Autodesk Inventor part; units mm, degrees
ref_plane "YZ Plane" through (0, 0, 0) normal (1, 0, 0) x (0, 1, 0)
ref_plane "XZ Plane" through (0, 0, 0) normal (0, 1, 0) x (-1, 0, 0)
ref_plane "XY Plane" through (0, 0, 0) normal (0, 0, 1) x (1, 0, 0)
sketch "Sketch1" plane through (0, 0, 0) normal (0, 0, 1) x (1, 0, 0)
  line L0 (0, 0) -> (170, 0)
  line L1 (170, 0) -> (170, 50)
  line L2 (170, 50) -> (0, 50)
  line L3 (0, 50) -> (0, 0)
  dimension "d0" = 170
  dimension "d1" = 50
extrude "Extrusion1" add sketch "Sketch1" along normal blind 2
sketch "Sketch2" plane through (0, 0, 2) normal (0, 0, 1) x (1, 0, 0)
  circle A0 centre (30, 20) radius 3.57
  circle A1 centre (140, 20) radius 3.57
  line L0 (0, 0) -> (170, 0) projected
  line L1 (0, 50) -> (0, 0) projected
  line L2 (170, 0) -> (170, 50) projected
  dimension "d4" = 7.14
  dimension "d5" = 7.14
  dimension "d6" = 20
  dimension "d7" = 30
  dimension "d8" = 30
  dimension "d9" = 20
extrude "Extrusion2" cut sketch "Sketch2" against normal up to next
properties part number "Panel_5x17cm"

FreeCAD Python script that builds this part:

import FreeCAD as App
import Part
import Sketcher

V = App.Vector
Q = App.Units.Quantity


def add_polygon(sketch, points):
    """Adds a closed chain of lines whose ends are joined by coincident constraints."""
    first, n = sketch.GeometryCount, len(points)
    for a, b in zip(points, points[1:] + points[:1]):
        sketch.addGeometry(Part.LineSegment(App.Vector(*a, 0), App.Vector(*b, 0)), False)
    for i in range(n):
        sketch.addConstraint(Sketcher.Constraint("Coincident", first + i, 2, first + (i + 1) % n, 1))

doc = App.newDocument("Part")
body = doc.addObject("PartDesign::Body", "Body")

# Sketch on XY plane
sketch1 = body.newObject("Sketcher::SketchObject", "Sketch")
sketch1.AttachmentSupport = (doc.getObject("XY_Plane"), [""])
sketch1.MapMode = "FlatFace"
add_polygon(sketch1, [(0, 50), (0, 0), (170, 0), (170, 50)])  # lines 0-3
sketch1.addConstraint([
    Sketcher.Constraint("Vertical", 0),
    Sketcher.Constraint("Horizontal", 1),
    Sketcher.Constraint("Vertical", 2),
    Sketcher.Constraint("Horizontal", 3),
    Sketcher.Constraint("Coincident", 0, 2, -1, 1),
    Sketcher.Constraint("DistanceX", 1, 1, 1, 2, Q("170 mm")),
    Sketcher.Constraint("DistanceY", 0, 2, 0, 1, Q("50 mm")),
])
pad1 = body.newObject("PartDesign::Pad", "Pad")
pad1.Profile = sketch1
pad1.Length = 2

# Sketch on XY plane
sketch2 = body.newObject("Sketcher::SketchObject", "Sketch001")
sketch2.AttachmentSupport = (doc.getObject("XY_Plane"), [""])
sketch2.MapMode = "FlatFace"
sketch2.AttachmentOffset = App.Placement(V(0, 0, 2), App.Rotation())
sketch2.addGeometry([
    Part.Circle(V(30, 20, 0), V(0, 0, 1), 3.6),
    Part.Circle(V(140, 20, 0), V(0, 0, 1), 3.6),
], False)
sketch2.addConstraint([
    Sketcher.Constraint("Equal", 0, 1),
    Sketcher.Constraint("Horizontal", 0, 3, 1, 3),
    Sketcher.Constraint("Diameter", 0, Q("7.14 mm")),
    Sketcher.Constraint("DistanceX", -1, 1, 0, 3, Q("30 mm")),
    Sketcher.Constraint("DistanceY", -1, 1, 0, 3, Q("20 mm")),
    Sketcher.Constraint("DistanceX", -1, 1, 1, 3, Q("140 mm")),
])
pocket1 = body.newObject("PartDesign::Pocket", "Pocket")
pocket1.Profile = sketch2
pocket1.Length = 2

doc.recompute()
